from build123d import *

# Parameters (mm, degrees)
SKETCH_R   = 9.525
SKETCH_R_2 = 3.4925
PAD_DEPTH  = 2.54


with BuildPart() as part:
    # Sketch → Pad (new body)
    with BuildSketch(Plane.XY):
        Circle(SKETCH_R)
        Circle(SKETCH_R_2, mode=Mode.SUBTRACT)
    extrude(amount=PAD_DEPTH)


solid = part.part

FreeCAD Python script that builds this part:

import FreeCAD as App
import Part
import Sketcher
Q = App.Units.Quantity

doc = App.newDocument("Part")
body = doc.addObject("PartDesign::Body", "Body")

# Sketch on XY plane
sketch1 = body.newObject("Sketcher::SketchObject", "Sketch")
sketch1.AttachmentSupport = (doc.getObject("XY_Plane"), [""])
sketch1.MapMode = "FlatFace"
sketch1.addGeometry([
    Part.Circle(App.Vector(0, 0, 0), App.Vector(0, 0, 1), 9.5),
    Part.Circle(App.Vector(0, 0, 0), App.Vector(0, 0, 1), 3.5),
], False)
sketch1.addConstraint([
    Sketcher.Constraint("Coincident", 0, 3, -1, 1),
    Sketcher.Constraint("Coincident", 1, 3, -1, 1),
    Sketcher.Constraint("Diameter", 0, Q("0.75 in")),
    Sketcher.Constraint("Diameter", 1, Q("0.275 in")),
])
pad1 = body.newObject("PartDesign::Pad", "Pad")
pad1.Profile = sketch1
pad1.Length = Q("0.1 in")

doc.recompute()
